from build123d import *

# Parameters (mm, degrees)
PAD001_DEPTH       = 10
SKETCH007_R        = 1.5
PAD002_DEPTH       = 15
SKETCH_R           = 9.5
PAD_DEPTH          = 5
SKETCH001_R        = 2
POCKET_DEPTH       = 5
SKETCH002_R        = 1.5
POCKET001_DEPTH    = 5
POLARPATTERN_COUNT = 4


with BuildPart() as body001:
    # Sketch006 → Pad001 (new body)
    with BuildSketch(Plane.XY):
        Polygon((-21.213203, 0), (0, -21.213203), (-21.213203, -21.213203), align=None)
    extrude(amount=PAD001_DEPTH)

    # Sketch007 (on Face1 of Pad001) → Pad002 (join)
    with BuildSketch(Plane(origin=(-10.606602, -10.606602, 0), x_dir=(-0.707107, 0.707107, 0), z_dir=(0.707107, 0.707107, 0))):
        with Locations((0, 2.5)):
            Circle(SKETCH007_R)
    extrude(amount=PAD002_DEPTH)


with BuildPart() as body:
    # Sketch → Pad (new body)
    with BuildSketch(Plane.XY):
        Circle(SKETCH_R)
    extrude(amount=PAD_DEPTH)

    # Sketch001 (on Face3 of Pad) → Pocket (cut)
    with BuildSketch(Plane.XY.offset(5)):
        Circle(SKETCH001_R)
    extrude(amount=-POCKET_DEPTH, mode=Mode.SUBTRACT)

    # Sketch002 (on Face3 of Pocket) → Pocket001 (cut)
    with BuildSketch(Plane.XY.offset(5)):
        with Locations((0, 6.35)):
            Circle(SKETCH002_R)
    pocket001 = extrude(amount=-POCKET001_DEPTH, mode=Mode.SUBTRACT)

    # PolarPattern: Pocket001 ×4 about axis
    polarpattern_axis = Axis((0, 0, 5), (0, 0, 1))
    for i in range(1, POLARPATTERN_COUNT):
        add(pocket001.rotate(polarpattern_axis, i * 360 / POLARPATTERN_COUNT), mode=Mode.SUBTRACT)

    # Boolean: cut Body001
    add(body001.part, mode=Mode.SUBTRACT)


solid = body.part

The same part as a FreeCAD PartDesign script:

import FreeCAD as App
import Part
import Sketcher

V = App.Vector
Q = App.Units.Quantity

doc = App.newDocument("Part")
body = doc.addObject("PartDesign::Body", "Body")

# Sketch on XY plane
sketch1 = body.newObject("Sketcher::SketchObject", "Sketch")
sketch1.AttachmentSupport = (doc.getObject("XY_Plane"), [""])
sketch1.MapMode = "FlatFace"
sketch1.addGeometry([
    Part.LineSegment(V(0, -21, 0), V(-21, 0, 0)),
    Part.LineSegment(V(-21, 0, 0), V(-21, -21, 0)),
    Part.LineSegment(V(-21, -21, 0), V(0, -21, 0)),
], False)
sketch1.addConstraint([
    Sketcher.Constraint("Coincident", 0, 2, 1, 1),
    Sketcher.Constraint("Coincident", 1, 2, 2, 1),
    Sketcher.Constraint("Coincident", 2, 2, 0, 1),
    Sketcher.Constraint("Vertical", 1),
    Sketcher.Constraint("Horizontal", 2),
    Sketcher.Constraint("PointOnObject", 0, 2, -1),
    Sketcher.Constraint("PointOnObject", 2, 2, -2),
    Sketcher.Constraint("Equal", 2, 1),
    Sketcher.Constraint("Distance", 0, Q("29.999999 mm")),
])
pad1 = body.newObject("PartDesign::Pad", "Pad")
pad1.Profile = sketch1
pad1.Length = 10

# Sketch on an angled plane
sketch2 = body.newObject("Sketcher::SketchObject", "Sketch001")
sketch2.Placement = App.Placement(V(-10.606602, -10.606602, 0), App.Rotation(V(-0.707106781, 0.707106781, 0), V(0, 0, 0.999999999), V(0.707106781, 0.707106781, 0), "ZXY"))
sketch2.addGeometry(Part.Circle(V(0, 2.5, 0), V(0, 0, 1), 1.5), False)
sketch2.addConstraint([
    Sketcher.Constraint("PointOnObject", 0, 3, -2),
    Sketcher.Constraint("Diameter", 0, Q("3 mm")),
    Sketcher.Constraint("DistanceY", -1, 1, 0, 3, Q("2.5 mm")),
])
pad2 = body.newObject("PartDesign::Pad", "Pad001")
pad2.Profile = sketch2
pad2.Length = 15
body2 = doc.addObject("PartDesign::Body", "Body001")

# Sketch on XY plane
sketch3 = body2.newObject("Sketcher::SketchObject", "Sketch002")
sketch3.AttachmentSupport = (doc.getObject("XY_Plane001"), [""])
sketch3.MapMode = "FlatFace"
sketch3.addGeometry(Part.Circle(V(0, 0, 0), V(0, 0, 1), 10), False)
sketch3.addConstraint([
    Sketcher.Constraint("Coincident", 0, 3, -1, 1),
    Sketcher.Constraint("Diameter", 0, Q("19 mm")),
])
pad3 = body2.newObject("PartDesign::Pad", "Pad002")
pad3.Profile = sketch3
pad3.Length = 5

# Sketch on XY plane
sketch4 = body2.newObject("Sketcher::SketchObject", "Sketch003")
sketch4.AttachmentSupport = (doc.getObject("XY_Plane001"), [""])
sketch4.MapMode = "FlatFace"
sketch4.AttachmentOffset = App.Placement(V(0, 0, 5), App.Rotation())
sketch4.addGeometry(Part.Circle(V(0, 0, 0), V(0, 0, 1), 2), False)
sketch4.addConstraint([
    Sketcher.Constraint("Coincident", 0, 3, -1, 1),
    Sketcher.Constraint("Diameter", 0, Q("4 mm")),
])
pocket1 = body2.newObject("PartDesign::Pocket", "Pocket")
pocket1.Profile = sketch4
pocket1.Length = 5

# Sketch on XY plane
sketch5 = body2.newObject("Sketcher::SketchObject", "Sketch004")
sketch5.AttachmentSupport = (doc.getObject("XY_Plane001"), [""])
sketch5.MapMode = "FlatFace"
sketch5.AttachmentOffset = App.Placement(V(0, 0, 5), App.Rotation())
sketch5.addGeometry(Part.Circle(V(0, 6.3, 0), V(0, 0, 1), 1.5), False)
sketch5.addConstraint([
    Sketcher.Constraint("PointOnObject", 0, 3, -2),
    Sketcher.Constraint("Diameter", 0, Q("3 mm")),
    Sketcher.Constraint("DistanceY", -1, 1, 0, 3, Q("6.35 mm")),
])
pocket2 = body2.newObject("PartDesign::Pocket", "Pocket001")
pocket2.Profile = sketch5
pocket2.Length = 5
doc.recompute()

polarpattern = body2.newObject("PartDesign::PolarPattern", "PolarPattern")
polarpattern.Originals = [pocket2]
polarpattern.Axis = (doc.getObject("Z_Axis001"), [""])
polarpattern.Angle = 360
polarpattern.Occurrences = 4
body2.Tip = polarpattern
doc.recompute()

boolean = body2.newObject("PartDesign::Boolean", "Boolean")
boolean.Type = "Cut"
boolean.addObjects([body])

doc.recompute()
